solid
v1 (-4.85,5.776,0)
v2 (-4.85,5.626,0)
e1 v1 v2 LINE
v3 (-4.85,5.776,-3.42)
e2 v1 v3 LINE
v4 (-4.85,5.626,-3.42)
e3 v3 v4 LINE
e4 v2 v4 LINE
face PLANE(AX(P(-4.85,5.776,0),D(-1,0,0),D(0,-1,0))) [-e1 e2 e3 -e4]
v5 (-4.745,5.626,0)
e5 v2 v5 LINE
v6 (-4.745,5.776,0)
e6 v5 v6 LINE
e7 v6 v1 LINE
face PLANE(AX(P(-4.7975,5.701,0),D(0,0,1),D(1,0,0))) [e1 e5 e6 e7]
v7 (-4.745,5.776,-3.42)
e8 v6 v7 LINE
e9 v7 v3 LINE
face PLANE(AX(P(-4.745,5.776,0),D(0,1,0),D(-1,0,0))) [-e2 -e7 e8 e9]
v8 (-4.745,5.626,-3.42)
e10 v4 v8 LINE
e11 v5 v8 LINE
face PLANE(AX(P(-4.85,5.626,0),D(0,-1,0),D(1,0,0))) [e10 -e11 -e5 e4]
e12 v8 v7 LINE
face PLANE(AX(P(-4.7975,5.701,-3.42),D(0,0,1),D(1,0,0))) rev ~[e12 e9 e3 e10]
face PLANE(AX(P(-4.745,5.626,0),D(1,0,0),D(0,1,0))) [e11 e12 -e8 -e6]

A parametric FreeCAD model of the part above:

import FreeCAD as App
import Part
import Sketcher
from FreeCAD import Vector
Q = App.Units.Quantity


def add_polygon(sketch, points):
    """Adds a closed chain of lines whose ends are joined by coincident constraints."""
    first, n = sketch.GeometryCount, len(points)
    for a, b in zip(points, points[1:] + points[:1]):
        sketch.addGeometry(Part.LineSegment(App.Vector(*a, 0), App.Vector(*b, 0)), False)
    for i in range(n):
        sketch.addConstraint(Sketcher.Constraint("Coincident", first + i, 2, first + (i + 1) % n, 1))

doc = App.newDocument("Part")
body = doc.addObject("PartDesign::Body", "Body")

# Sketch on XY plane
sketch1 = doc.addObject("Sketcher::SketchObject", "Sketch")
body.addObject(sketch1)
sketch1.AttachmentSupport = (doc.XY_Plane, [""])
sketch1.MapMode = "FlatFace"
add_polygon(sketch1, [(-4.75, 5.78), (-4.85, 5.78), (-4.85, 5.63), (-4.75, 5.63)])  # lines 0-3
sketch1.addConstraint([
    Sketcher.Constraint("Horizontal", 0),
    Sketcher.Constraint("Vertical", 1),
    Sketcher.Constraint("Horizontal", 2),
    Sketcher.Constraint("Vertical", 3),
    Sketcher.Constraint("DistanceX", 0, 2, -1, 1, Q("4.85 mm")),
    Sketcher.Constraint("DistanceY", 1, 2, 1, 1, Q("0.15 mm")),
    Sketcher.Constraint("DistanceX", 0, 2, 0, 1, Q("0.105 mm")),
    Sketcher.Constraint("DistanceY", -1, 1, 0, 2, Q("5.776 mm")),
])
pad1 = doc.addObject("PartDesign::Pad", "Pad")
body.addObject(pad1)
pad1.Profile = sketch1
pad1.Length = 3.42
pad1.Reversed = True

doc.recompute()
